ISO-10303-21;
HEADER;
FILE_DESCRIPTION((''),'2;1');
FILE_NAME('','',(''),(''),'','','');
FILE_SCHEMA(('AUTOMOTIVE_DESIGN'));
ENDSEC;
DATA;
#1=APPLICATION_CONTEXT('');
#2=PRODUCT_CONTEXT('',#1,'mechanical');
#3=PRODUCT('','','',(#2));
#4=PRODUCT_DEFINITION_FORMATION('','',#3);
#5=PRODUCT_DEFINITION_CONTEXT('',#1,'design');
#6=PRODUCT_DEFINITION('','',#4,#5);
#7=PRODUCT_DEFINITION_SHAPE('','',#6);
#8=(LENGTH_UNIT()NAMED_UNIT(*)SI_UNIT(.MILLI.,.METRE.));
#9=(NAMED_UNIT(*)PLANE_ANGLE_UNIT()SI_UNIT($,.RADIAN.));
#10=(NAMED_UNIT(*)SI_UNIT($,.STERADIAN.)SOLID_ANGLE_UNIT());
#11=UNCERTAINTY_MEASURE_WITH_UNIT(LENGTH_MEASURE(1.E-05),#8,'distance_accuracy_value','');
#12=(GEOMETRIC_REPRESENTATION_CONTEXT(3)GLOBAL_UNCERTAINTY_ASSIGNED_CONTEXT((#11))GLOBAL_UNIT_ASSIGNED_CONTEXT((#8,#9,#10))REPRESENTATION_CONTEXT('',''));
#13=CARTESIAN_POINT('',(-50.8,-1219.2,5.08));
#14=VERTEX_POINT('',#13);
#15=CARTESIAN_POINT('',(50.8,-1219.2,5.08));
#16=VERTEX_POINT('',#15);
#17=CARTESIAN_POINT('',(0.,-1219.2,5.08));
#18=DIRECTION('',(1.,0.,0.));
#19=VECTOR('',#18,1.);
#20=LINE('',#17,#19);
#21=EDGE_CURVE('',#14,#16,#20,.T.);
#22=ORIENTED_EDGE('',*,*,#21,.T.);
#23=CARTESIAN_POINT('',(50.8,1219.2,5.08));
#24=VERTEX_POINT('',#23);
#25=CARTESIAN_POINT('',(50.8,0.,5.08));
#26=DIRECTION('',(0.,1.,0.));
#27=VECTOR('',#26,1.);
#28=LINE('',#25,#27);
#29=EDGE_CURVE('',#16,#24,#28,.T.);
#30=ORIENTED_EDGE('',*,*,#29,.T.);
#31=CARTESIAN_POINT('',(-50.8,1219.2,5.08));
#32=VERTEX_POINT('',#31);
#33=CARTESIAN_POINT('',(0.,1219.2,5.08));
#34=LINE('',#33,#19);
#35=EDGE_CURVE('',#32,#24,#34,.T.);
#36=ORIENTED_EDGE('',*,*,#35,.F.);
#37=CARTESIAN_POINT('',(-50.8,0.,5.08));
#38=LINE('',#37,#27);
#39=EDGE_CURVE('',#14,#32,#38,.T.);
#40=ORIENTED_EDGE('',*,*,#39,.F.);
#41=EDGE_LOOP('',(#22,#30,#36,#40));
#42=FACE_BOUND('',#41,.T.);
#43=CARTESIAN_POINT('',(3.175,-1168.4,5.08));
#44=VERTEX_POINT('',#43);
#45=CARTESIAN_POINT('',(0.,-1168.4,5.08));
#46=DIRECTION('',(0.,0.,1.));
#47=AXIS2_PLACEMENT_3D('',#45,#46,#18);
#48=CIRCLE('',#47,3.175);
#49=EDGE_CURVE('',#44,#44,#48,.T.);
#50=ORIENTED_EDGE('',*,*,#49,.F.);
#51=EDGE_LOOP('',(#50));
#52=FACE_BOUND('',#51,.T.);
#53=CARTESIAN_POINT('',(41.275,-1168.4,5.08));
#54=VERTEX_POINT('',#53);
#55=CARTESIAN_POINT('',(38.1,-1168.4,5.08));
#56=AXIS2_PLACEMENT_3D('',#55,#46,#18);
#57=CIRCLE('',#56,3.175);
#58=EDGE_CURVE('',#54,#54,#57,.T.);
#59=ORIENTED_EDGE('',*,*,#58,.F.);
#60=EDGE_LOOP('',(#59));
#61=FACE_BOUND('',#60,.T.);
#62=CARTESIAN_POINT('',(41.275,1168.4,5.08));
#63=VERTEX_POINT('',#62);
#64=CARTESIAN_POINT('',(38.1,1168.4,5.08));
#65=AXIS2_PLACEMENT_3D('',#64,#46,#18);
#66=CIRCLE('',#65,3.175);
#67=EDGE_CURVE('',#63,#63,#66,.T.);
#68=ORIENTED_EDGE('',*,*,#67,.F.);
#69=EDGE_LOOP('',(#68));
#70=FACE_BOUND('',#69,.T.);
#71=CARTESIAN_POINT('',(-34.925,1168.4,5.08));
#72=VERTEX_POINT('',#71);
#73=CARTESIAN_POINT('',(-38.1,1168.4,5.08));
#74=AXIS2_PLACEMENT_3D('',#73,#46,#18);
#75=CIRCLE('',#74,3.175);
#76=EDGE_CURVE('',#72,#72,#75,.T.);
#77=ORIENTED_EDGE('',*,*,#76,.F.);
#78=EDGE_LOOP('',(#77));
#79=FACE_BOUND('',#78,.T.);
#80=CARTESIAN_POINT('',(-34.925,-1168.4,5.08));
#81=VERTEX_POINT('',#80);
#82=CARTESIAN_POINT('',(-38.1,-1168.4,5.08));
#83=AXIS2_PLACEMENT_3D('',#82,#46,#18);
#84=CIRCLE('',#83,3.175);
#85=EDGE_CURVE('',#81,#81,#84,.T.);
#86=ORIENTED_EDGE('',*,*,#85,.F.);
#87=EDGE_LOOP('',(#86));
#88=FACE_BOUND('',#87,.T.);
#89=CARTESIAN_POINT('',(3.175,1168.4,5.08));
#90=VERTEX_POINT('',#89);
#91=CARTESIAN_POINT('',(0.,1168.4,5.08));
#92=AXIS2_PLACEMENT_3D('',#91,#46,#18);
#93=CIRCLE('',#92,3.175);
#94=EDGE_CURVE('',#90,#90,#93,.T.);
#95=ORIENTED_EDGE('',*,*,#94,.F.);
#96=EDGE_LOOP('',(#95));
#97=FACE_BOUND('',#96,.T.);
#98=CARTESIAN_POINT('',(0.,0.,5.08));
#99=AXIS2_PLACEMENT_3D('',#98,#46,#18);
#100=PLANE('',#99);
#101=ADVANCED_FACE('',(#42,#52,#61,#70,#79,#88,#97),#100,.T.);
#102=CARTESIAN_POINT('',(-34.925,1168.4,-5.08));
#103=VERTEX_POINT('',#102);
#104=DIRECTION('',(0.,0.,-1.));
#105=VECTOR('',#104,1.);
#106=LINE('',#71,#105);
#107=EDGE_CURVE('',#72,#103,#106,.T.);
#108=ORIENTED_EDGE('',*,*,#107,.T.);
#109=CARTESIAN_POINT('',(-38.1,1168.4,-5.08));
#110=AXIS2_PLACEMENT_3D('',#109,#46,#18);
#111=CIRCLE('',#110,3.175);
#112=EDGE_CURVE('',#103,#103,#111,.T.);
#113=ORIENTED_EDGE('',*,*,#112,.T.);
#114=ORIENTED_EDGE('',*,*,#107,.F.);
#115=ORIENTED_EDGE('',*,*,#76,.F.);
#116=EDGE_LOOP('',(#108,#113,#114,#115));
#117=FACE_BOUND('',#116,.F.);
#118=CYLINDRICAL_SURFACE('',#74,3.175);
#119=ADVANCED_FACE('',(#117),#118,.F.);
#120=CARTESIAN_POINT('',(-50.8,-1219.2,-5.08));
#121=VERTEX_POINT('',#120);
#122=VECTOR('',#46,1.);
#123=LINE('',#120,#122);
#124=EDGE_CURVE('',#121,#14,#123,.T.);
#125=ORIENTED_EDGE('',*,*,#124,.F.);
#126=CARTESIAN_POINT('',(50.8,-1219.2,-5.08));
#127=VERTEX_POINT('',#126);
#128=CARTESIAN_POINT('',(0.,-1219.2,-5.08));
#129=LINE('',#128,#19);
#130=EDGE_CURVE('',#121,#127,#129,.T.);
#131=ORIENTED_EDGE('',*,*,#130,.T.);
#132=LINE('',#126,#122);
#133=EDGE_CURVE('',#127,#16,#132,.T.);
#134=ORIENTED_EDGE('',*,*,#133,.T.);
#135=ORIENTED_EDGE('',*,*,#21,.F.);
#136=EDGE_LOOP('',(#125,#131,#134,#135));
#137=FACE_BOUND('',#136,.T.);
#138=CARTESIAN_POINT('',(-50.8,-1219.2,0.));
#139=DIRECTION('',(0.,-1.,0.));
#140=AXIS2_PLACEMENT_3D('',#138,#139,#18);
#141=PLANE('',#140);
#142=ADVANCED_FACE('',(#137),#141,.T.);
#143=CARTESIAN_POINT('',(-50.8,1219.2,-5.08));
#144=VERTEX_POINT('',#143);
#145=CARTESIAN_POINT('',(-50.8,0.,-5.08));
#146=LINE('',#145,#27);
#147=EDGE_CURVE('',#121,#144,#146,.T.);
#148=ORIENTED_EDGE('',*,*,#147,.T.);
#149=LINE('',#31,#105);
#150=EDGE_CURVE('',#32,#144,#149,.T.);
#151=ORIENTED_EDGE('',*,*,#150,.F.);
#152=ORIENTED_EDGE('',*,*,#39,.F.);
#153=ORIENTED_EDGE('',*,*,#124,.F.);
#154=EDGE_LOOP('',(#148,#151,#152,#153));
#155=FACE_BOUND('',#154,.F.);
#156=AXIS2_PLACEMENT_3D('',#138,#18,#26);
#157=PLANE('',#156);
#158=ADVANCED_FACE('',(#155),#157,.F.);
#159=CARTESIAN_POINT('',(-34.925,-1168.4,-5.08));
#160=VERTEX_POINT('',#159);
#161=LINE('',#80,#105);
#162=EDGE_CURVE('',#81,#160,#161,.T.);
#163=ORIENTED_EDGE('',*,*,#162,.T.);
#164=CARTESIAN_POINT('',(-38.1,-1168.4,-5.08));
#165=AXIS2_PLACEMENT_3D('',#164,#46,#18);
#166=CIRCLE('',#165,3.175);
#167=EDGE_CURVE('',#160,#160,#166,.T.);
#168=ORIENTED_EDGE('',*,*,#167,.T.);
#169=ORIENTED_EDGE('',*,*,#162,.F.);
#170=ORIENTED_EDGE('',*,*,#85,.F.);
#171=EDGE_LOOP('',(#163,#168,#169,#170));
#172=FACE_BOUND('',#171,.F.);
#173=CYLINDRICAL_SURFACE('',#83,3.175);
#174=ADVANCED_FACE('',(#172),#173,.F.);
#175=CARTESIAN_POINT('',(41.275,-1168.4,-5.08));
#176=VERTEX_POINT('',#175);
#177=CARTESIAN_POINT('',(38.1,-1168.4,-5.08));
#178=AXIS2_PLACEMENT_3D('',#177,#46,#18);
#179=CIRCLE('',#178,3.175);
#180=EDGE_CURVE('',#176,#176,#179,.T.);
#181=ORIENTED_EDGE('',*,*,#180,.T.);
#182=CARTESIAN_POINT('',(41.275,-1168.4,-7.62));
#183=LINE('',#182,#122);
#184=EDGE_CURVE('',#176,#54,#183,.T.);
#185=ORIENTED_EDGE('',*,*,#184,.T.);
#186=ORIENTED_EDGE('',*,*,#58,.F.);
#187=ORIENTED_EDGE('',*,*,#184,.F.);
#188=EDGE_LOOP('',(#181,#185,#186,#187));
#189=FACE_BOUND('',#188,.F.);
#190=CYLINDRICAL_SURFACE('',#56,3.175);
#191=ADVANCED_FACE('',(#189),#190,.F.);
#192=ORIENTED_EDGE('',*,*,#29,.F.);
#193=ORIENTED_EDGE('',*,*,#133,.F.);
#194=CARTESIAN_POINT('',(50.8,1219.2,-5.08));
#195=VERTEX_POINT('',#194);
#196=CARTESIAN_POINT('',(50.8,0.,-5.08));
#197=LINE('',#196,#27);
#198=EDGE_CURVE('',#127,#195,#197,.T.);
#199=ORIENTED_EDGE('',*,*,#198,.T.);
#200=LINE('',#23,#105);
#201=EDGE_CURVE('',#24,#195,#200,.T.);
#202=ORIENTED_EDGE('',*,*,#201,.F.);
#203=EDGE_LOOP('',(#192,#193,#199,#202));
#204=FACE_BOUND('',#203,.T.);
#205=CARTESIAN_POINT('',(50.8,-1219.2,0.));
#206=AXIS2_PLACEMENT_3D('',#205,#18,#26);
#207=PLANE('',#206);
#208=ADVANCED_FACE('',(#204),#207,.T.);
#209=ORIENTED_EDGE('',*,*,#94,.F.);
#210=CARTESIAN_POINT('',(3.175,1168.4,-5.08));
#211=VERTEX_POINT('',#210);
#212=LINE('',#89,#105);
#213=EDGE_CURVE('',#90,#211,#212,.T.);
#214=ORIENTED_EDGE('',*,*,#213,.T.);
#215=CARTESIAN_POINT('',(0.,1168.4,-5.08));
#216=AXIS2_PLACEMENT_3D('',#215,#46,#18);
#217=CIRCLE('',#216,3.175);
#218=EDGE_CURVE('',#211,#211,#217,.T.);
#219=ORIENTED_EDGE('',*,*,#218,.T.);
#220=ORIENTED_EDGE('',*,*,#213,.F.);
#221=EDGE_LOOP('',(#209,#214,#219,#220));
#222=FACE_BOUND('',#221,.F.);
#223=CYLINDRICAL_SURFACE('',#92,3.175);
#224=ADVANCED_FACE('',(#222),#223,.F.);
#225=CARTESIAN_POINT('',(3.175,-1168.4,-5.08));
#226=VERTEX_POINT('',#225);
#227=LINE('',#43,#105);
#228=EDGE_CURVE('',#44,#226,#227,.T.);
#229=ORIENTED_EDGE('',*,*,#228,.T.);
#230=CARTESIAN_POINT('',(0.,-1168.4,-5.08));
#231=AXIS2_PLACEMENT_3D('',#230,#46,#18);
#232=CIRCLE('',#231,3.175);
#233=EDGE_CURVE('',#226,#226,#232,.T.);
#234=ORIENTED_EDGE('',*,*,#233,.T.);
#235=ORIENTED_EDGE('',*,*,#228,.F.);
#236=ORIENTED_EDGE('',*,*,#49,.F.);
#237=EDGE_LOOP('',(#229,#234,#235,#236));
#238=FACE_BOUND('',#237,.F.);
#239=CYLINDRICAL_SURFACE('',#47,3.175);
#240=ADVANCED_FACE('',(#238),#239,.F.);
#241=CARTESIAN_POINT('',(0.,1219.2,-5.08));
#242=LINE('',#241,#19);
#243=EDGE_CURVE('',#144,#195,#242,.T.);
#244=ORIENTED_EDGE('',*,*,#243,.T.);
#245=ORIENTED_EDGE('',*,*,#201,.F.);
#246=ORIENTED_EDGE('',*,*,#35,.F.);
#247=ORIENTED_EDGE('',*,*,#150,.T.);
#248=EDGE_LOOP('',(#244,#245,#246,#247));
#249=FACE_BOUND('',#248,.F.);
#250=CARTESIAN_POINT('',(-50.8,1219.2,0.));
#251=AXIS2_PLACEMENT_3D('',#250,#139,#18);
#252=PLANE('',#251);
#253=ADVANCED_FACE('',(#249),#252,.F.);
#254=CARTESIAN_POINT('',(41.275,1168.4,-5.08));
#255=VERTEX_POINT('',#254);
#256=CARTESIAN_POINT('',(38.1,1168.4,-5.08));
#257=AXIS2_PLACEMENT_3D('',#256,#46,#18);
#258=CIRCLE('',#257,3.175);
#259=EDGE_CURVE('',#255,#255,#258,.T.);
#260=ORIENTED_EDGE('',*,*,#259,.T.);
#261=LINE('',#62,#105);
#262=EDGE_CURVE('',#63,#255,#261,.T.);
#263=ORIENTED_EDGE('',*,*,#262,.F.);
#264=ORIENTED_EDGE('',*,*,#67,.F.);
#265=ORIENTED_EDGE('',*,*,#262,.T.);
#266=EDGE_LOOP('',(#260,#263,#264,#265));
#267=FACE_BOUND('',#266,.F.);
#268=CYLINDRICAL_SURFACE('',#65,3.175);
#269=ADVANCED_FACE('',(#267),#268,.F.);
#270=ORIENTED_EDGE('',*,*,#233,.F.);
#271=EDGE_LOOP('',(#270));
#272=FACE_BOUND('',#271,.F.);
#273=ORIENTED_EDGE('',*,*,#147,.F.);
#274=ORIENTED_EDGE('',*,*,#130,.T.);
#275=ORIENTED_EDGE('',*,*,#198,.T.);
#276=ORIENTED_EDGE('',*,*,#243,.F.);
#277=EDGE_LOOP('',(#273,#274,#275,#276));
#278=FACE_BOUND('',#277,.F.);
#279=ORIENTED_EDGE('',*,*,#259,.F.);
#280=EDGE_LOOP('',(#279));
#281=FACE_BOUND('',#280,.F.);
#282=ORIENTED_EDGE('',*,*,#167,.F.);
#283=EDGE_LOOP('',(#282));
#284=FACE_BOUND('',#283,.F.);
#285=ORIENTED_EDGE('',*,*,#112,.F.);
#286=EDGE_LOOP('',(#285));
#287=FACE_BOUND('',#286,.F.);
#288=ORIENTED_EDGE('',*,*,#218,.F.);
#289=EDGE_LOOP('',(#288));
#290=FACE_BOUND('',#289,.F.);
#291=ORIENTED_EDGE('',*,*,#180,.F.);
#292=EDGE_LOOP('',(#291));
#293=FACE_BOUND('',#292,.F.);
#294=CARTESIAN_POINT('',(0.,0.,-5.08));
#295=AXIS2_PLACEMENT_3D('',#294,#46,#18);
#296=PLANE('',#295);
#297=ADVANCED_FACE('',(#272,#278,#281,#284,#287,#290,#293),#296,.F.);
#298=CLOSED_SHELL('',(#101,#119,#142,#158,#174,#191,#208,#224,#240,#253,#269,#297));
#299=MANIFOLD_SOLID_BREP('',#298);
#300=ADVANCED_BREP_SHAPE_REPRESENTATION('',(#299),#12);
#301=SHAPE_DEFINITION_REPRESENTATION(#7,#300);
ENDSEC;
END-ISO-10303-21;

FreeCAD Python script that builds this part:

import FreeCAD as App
import Part
import Sketcher
Q = App.Units.Quantity


def add_polygon(sketch, points):
    """Adds a closed chain of lines whose ends are joined by coincident constraints."""
    first, n = sketch.GeometryCount, len(points)
    for a, b in zip(points, points[1:] + points[:1]):
        sketch.addGeometry(Part.LineSegment(App.Vector(*a, 0), App.Vector(*b, 0)), False)
    for i in range(n):
        sketch.addConstraint(Sketcher.Constraint("Coincident", first + i, 2, first + (i + 1) % n, 1))

doc = App.newDocument("Part")
body = doc.addObject("PartDesign::Body", "Body")

sketch1 = body.newObject("Sketcher::SketchObject", "Sketch")
sketch1.AttachmentSupport = (doc.getObject("XY_Plane"), [""])
sketch1.MapMode = "FlatFace"
add_polygon(sketch1, [(-51, 1219), (-51, -1219), (51, -1219), (51, 1219)])
sketch1.addConstraint(Sketcher.Constraint("Vertical", 0))
sketch1.addConstraint(Sketcher.Constraint("Horizontal", 1))
sketch1.addConstraint(Sketcher.Constraint("Vertical", 2))
sketch1.addConstraint(Sketcher.Constraint("Horizontal", 3))
sketch1.addConstraint(Sketcher.Constraint("Symmetric", 0, 2, 2, 2, -1, 1))
sketch1.addConstraint(Sketcher.Constraint("DistanceX", 1, 1, 1, 2, Q("4 in")))
sketch1.addConstraint(Sketcher.Constraint("DistanceY", 0, 2, 0, 1, Q("96 in")))
pad1 = body.newObject("PartDesign::Pad", "Pad")
pad1.Profile = sketch1
pad1.Length = Q("0.4 in")
pad1.Midplane = True

sketch2 = body.newObject("Sketcher::SketchObject", "Sketch001")
sketch2.AttachmentSupport = (doc.getObject("XY_Plane"), [""])
sketch2.MapMode = "FlatFace"
sketch2.AttachmentOffset = App.Placement(App.Vector(0, 0, 0.2 * 25.4), App.Rotation())
sketch2.addGeometry(Part.Circle(App.Vector(0, -1168.4, 0), App.Vector(0, 0, 1), 3.2), False)
sketch2.addGeometry(Part.Circle(App.Vector(0, 1168.4, 0), App.Vector(0, 0, 1), 3.2), False)
sketch2.addGeometry(Part.Circle(App.Vector(-38.1, 1168.4, 0), App.Vector(0, 0, 1), 3.2), False)
sketch2.addGeometry(Part.Circle(App.Vector(38.1, 1168.4, 0), App.Vector(0, 0, 1), 3.2), False)
sketch2.addGeometry(Part.Circle(App.Vector(-38.1, -1168.4, 0), App.Vector(0, 0, 1), 3.2), False)
sketch2.addGeometry(Part.Circle(App.Vector(38.1, -1168.4, 0), App.Vector(0, 0, 1), 3.2), False)
sketch2.addConstraint(Sketcher.Constraint("Equal", 0, 1))
sketch2.addConstraint(Sketcher.Constraint("Equal", 1, 2))
sketch2.addConstraint(Sketcher.Constraint("Equal", 2, 3))
sketch2.addConstraint(Sketcher.Constraint("Equal", 3, 4))
sketch2.addConstraint(Sketcher.Constraint("Equal", 4, 5))
sketch2.addConstraint(Sketcher.Constraint("Symmetric", 0, 3, 1, 3, -1, 1))
sketch2.addConstraint(Sketcher.Constraint("Symmetric", 3, 3, 4, 3, -1, 1))
sketch2.addConstraint(Sketcher.Constraint("Symmetric", 2, 3, 5, 3, -1, 1))
sketch2.addConstraint(Sketcher.Constraint("Symmetric", 2, 3, 3, 3, -2))
sketch2.addConstraint(Sketcher.Constraint("PointOnObject", 0, 3, -2))
sketch2.addConstraint(Sketcher.Constraint("Horizontal", 1, 3, 2, 3))
sketch2.addConstraint(Sketcher.Constraint("Diameter", 0, Q("0.25 in")))
sketch2.addConstraint(Sketcher.Constraint("DistanceY", 0, 3, -1, 1, Q("46 in")))
sketch2.addConstraint(Sketcher.Constraint("DistanceX", 2, 3, 3, 3, Q("3 in")))
pocket1 = body.newObject("PartDesign::Pocket", "Pocket")
pocket1.Profile = sketch2
pocket1.Length = Q("1 in")
pocket1.Midplane = True

doc.recompute()
